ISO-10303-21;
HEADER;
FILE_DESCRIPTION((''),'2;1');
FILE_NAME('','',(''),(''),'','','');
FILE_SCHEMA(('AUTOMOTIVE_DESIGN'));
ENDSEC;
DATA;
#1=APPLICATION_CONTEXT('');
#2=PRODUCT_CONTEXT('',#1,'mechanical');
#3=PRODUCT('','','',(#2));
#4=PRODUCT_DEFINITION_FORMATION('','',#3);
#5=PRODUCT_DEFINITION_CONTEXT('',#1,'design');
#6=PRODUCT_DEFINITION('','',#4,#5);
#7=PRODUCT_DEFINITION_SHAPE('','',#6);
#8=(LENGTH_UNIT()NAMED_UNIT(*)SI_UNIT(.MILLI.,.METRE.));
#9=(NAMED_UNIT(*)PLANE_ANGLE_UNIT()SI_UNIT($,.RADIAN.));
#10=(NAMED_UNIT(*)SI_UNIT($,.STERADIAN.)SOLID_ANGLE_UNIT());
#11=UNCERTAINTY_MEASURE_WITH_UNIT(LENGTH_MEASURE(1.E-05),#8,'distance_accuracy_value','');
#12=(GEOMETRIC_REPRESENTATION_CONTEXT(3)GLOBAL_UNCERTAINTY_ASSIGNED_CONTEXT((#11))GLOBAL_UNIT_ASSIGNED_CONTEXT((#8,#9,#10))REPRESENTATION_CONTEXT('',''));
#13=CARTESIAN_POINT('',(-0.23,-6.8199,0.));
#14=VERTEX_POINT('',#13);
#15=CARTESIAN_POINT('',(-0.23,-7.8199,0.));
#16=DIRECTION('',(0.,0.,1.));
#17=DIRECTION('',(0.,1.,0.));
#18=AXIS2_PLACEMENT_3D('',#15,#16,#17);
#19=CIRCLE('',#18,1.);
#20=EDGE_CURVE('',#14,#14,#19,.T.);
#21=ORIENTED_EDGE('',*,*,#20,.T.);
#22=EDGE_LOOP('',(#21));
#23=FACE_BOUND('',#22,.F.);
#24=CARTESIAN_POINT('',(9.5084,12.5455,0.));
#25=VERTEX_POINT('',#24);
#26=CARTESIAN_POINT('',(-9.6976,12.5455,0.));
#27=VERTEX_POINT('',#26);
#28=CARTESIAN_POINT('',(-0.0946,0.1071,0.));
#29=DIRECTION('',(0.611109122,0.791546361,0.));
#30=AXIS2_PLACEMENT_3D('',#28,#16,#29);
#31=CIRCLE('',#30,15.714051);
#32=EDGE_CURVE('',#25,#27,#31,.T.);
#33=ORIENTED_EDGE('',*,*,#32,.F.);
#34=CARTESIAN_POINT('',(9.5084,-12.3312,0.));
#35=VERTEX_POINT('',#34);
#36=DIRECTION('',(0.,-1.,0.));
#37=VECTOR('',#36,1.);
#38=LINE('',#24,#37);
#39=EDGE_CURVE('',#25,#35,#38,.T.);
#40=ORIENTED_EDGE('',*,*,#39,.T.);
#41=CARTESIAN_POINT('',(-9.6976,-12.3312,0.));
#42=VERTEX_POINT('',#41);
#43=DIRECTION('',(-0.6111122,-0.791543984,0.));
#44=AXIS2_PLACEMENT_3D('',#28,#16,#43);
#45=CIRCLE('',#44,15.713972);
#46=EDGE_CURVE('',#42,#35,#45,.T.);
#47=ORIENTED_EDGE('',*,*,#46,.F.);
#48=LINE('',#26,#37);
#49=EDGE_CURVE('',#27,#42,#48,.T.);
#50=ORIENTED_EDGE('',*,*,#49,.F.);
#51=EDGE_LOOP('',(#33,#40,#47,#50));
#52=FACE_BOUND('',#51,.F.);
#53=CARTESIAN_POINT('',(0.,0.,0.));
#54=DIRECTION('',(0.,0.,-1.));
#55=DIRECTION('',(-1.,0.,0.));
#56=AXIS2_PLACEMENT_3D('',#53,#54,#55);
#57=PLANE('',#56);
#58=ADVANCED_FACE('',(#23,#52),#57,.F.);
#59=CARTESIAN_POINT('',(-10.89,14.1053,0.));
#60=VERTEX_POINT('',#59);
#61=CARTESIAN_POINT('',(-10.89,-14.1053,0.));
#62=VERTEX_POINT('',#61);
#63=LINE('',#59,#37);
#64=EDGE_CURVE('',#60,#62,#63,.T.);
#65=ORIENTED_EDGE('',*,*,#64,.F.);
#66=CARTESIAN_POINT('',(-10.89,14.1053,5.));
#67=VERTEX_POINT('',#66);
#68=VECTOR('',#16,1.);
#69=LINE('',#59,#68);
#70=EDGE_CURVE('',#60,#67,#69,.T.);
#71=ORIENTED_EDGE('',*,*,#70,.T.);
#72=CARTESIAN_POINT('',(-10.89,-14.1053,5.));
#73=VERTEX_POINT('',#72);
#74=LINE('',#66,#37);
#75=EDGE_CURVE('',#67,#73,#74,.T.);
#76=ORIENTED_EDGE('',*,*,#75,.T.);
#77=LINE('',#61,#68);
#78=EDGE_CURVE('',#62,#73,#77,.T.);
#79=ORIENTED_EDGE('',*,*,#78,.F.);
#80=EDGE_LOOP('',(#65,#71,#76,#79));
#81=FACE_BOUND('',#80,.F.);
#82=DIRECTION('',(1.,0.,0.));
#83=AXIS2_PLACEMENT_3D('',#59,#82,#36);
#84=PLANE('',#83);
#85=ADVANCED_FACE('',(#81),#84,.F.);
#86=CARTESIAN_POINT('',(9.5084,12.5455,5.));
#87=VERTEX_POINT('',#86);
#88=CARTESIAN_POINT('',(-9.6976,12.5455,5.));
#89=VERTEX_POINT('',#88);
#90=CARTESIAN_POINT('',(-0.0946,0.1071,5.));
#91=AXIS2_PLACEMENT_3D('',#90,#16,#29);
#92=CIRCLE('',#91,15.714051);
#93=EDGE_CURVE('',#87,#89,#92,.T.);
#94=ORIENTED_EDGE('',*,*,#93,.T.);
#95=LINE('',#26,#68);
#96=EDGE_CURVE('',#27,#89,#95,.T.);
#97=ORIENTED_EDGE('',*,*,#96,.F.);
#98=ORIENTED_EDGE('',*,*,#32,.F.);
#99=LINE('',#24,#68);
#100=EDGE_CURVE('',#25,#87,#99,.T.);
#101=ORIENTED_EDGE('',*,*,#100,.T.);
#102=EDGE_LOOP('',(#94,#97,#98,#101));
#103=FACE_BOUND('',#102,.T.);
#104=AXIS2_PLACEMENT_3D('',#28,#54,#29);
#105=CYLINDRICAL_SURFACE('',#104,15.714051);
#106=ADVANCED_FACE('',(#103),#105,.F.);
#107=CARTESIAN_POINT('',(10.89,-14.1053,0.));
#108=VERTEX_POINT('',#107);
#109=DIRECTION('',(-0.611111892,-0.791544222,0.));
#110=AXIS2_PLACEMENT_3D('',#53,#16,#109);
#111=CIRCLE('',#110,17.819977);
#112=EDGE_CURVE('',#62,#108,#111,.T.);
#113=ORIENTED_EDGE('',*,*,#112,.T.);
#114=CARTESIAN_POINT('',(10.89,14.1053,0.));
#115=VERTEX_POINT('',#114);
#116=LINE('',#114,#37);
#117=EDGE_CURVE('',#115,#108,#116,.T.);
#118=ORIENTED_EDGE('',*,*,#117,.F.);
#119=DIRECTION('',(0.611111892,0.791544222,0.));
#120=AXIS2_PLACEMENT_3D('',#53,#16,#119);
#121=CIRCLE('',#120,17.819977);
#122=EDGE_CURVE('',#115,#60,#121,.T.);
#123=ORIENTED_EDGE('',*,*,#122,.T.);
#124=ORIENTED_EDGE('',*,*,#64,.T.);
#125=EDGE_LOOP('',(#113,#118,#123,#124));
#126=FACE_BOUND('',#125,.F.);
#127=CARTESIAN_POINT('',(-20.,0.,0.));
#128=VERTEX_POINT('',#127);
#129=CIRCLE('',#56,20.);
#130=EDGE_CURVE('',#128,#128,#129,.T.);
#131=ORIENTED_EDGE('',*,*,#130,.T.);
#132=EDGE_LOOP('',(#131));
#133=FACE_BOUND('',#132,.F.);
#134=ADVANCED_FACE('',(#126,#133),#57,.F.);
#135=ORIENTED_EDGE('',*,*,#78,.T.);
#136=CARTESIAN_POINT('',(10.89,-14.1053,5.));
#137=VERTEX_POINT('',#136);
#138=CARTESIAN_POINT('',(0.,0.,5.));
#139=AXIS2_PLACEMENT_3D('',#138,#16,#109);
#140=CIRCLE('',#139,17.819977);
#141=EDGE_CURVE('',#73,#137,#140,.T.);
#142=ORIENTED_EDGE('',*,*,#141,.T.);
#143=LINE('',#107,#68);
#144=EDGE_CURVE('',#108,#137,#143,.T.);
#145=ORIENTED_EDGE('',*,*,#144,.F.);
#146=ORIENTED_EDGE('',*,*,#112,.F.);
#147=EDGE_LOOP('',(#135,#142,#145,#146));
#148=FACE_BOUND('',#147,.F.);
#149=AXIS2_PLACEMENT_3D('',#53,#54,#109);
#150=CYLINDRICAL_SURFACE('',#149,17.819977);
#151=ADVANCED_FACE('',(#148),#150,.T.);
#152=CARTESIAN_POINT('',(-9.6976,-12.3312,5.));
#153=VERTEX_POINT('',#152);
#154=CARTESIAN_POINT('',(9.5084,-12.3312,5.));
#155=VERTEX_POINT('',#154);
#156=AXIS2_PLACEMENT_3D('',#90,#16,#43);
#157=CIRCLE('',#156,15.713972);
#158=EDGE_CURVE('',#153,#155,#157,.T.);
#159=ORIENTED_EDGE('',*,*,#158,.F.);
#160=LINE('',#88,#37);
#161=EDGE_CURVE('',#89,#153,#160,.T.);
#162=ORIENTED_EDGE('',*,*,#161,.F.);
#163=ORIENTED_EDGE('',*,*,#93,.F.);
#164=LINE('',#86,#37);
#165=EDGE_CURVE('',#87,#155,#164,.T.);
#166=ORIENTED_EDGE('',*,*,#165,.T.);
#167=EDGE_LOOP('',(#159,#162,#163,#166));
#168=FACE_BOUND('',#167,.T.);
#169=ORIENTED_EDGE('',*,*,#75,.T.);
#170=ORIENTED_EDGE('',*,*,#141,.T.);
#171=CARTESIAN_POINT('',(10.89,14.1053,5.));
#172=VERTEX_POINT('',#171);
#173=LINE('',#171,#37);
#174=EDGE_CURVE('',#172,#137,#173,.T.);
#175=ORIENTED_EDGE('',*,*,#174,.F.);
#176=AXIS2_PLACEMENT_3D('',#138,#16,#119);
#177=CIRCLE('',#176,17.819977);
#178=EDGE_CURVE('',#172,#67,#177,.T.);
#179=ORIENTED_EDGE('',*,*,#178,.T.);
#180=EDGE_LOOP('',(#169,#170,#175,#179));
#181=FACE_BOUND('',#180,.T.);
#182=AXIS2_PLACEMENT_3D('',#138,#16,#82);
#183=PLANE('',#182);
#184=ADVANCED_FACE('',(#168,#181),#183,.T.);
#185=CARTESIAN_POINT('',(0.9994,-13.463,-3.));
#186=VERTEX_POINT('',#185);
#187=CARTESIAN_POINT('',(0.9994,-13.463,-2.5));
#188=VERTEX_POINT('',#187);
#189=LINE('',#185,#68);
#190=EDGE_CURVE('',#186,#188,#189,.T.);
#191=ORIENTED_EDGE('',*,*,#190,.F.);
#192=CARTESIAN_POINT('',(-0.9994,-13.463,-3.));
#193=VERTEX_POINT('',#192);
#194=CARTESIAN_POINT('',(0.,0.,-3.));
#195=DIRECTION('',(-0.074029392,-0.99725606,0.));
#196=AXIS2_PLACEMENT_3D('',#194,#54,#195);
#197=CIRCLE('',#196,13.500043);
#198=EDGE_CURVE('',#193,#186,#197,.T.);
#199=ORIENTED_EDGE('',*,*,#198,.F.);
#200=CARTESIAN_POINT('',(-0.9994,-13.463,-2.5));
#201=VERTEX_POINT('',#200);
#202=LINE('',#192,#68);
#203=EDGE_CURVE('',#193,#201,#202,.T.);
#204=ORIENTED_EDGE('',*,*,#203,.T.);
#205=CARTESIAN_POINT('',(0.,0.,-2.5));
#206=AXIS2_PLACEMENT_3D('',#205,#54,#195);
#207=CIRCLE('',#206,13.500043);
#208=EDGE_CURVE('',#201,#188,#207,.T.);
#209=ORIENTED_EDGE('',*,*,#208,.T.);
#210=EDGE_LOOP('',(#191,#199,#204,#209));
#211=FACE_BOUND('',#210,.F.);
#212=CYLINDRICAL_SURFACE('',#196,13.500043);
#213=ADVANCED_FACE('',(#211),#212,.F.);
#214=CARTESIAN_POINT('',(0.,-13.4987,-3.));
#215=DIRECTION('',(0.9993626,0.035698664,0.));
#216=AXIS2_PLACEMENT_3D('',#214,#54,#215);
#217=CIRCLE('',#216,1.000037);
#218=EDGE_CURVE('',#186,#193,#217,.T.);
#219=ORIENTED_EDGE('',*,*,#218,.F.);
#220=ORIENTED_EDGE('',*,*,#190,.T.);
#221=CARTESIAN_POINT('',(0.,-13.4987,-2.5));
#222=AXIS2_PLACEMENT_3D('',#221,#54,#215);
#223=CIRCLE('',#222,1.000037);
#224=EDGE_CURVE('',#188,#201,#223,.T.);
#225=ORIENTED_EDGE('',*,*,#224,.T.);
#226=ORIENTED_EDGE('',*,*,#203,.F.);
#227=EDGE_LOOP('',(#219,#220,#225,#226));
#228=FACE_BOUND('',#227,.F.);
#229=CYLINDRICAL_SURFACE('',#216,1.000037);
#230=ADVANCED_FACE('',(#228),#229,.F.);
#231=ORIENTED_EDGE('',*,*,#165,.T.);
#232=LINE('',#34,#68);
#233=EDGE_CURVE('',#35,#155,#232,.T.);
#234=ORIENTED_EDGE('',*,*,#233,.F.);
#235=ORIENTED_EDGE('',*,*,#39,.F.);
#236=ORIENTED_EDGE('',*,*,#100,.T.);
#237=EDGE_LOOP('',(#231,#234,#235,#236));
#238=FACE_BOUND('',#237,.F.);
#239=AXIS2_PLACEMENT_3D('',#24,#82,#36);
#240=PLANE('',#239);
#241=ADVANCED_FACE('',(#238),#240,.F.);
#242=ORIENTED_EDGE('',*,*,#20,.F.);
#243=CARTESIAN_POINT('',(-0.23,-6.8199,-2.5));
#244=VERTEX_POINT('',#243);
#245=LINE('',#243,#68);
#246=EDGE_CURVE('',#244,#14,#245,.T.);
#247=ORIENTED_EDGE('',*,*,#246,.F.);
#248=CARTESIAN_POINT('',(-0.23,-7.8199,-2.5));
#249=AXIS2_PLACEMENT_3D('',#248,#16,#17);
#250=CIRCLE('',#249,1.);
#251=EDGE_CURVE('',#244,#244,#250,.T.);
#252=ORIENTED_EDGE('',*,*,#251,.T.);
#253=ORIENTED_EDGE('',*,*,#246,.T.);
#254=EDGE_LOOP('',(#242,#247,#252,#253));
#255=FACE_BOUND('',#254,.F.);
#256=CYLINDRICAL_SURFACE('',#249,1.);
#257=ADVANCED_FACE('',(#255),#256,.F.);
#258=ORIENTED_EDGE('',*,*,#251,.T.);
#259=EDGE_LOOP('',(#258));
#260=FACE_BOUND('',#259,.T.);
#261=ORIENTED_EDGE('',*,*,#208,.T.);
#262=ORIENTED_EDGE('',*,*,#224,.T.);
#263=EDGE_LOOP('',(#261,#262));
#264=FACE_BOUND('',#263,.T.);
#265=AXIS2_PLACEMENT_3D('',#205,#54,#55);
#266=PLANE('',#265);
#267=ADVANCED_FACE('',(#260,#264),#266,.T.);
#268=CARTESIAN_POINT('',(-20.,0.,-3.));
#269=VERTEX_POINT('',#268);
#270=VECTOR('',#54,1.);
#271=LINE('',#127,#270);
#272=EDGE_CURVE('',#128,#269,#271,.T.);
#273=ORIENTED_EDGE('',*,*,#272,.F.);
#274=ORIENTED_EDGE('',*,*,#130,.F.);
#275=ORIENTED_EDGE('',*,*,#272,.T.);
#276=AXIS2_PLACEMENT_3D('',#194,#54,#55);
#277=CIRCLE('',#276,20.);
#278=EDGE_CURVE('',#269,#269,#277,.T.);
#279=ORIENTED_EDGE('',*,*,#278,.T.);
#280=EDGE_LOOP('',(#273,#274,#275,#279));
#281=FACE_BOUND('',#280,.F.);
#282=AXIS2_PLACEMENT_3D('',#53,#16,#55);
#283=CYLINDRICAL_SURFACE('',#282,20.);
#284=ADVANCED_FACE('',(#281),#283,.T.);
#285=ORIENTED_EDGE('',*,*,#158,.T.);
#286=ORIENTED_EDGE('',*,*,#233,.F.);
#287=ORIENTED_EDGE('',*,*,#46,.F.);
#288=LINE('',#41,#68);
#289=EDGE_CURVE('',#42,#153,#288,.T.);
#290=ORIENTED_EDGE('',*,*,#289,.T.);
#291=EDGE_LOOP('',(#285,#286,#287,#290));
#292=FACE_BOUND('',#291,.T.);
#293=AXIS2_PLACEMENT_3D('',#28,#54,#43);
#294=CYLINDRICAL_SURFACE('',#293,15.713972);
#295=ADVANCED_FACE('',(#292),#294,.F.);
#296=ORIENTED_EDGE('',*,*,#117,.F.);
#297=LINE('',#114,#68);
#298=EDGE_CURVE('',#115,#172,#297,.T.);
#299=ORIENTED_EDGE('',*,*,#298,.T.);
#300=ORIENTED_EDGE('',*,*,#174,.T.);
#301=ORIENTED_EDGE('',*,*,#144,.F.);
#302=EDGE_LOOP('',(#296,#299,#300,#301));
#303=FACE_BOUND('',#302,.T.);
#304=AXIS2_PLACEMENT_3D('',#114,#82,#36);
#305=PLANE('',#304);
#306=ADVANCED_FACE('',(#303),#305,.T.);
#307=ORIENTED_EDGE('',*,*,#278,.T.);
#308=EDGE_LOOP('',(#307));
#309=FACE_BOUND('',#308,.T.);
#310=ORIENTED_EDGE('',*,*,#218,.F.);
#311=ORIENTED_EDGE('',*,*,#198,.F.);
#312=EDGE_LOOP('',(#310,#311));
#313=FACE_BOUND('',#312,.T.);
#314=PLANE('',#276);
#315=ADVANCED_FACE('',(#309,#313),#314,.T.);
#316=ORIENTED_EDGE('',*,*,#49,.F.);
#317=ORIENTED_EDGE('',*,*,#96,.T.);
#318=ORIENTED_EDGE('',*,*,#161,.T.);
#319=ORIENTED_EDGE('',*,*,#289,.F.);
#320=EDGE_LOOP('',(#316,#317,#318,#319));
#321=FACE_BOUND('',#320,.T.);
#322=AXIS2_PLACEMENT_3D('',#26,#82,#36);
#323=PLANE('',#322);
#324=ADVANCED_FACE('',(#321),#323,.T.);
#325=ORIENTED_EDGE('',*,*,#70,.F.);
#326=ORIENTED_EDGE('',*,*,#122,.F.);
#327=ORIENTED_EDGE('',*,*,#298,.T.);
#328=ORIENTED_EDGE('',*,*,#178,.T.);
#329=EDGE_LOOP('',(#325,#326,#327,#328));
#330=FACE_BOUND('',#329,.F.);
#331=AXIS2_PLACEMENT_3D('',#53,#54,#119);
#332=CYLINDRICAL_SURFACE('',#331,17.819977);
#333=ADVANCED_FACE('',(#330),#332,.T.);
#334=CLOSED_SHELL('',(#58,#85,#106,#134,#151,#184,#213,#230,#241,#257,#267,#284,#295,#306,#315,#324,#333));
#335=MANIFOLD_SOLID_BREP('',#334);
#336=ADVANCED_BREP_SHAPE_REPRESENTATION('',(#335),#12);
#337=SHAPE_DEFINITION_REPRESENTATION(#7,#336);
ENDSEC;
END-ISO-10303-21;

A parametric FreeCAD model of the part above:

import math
import FreeCAD as App
import Part
import Sketcher
Q = App.Units.Quantity

doc = App.newDocument("Part")
body = doc.addObject("PartDesign::Body", "Body")

# Sketch on XY plane
sketch1 = doc.addObject("Sketcher::SketchObject", "Sketch")
body.addObject(sketch1)
sketch1.AttachmentSupport = (doc.XY_Plane, [""])
sketch1.MapMode = "FlatFace"
sketch1.addGeometry([
    Part.ArcOfCircle(Part.Circle(App.Vector(0, 0, 0), App.Vector(0, 0, 1), 17.819977), math.radians(52.330056), math.radians(127.669944)),  # 0
    Part.LineSegment(App.Vector(-10.89, 14.1053, 0), App.Vector(-10.89, -14.1053, 0)),  # 1
    Part.ArcOfCircle(Part.Circle(App.Vector(0, 0, 0), App.Vector(0, 0, 1), 17.819977), math.radians(-127.669944), math.radians(-52.330056)),  # 2
    Part.LineSegment(App.Vector(10.89, -14.1053, 0), App.Vector(10.89, 14.1053, 0)),  # 3
    Part.LineSegment(App.Vector(-9.6976, -12.3312, 0), App.Vector(-9.6976, 12.5455, 0)),  # 4
    Part.ArcOfCircle(Part.Circle(App.Vector(-0.0946, 0.1071, 0), App.Vector(0, 0, 1), 15.714051), math.radians(52.330257), math.radians(127.669743)),  # 5
    Part.LineSegment(App.Vector(9.5084, 12.5455, 0), App.Vector(9.5084, -12.3312, 0)),  # 6
    Part.ArcOfCircle(Part.Circle(App.Vector(-0.0946, 0.1071, 0), App.Vector(0, 0, 1), 15.713972), math.radians(-127.669966), math.radians(-52.330034)),  # 7
], False)
sketch1.addConstraint([
    Sketcher.Constraint("Coincident", 0, 2, 1, 1),
    Sketcher.Constraint("Coincident", 1, 2, 2, 1),
    Sketcher.Constraint("Coincident", 2, 2, 3, 1),
    Sketcher.Constraint("Coincident", 3, 2, 0, 1),
    Sketcher.Constraint("Coincident", 4, 2, 5, 2),
    Sketcher.Constraint("Coincident", 5, 1, 6, 1),
    Sketcher.Constraint("Coincident", 6, 2, 7, 2),
    Sketcher.Constraint("Coincident", 7, 1, 4, 1),
    Sketcher.Constraint("Vertical", 1),
    Sketcher.Constraint("Vertical", 3),
    Sketcher.Constraint("Vertical", 4),
    Sketcher.Constraint("Vertical", 6),
    Sketcher.Constraint("Coincident", 0, 3, -1, 1),
    Sketcher.Constraint("Coincident", 2, 3, -1, 1),
    Sketcher.Constraint("Coincident", 7, 3, 5, 3),
    Sketcher.Constraint("Equal", 0, 2),
    Sketcher.Constraint("Equal", 5, 7),
    Sketcher.Constraint("Horizontal", 1, 2, 2, 2),
    Sketcher.Constraint("Horizontal", 4, 2, 5, 1),
    Sketcher.Constraint("Radius", 0, Q("17.82 mm")),
    Sketcher.Constraint("Radius", 5, Q("15.714 mm")),
    Sketcher.Constraint("DistanceX", 0, 2, -1, 1, Q("10.89 mm")),
    Sketcher.Constraint("DistanceY", 4, 1, 4, 2, Q("24.8767 mm")),
    Sketcher.Constraint("DistanceY", -1, 1, 5, 3, Q("0.107 mm")),
    Sketcher.Constraint("DistanceX", 5, 3, -1, 1, Q("0.0946 mm")),
])
pad1 = doc.addObject("PartDesign::Pad", "Pad")
body.addObject(pad1)
pad1.Profile = sketch1
pad1.Length = 5

# Sketch on XY plane
sketch2 = doc.addObject("Sketcher::SketchObject", "Sketch001")
body.addObject(sketch2)
sketch2.AttachmentSupport = (doc.XY_Plane, [""])
sketch2.MapMode = "FlatFace"
sketch2.addGeometry(Part.Circle(App.Vector(0, 0, 0), App.Vector(0, 0, 1), 20), False)
sketch2.addConstraint([
    Sketcher.Constraint("Coincident", 0, 3, -1, 1),
    Sketcher.Constraint("Diameter", 0, Q("40 mm")),
])
pad2 = doc.addObject("PartDesign::Pad", "Pad001")
body.addObject(pad2)
pad2.Profile = sketch2
pad2.Length = 3
pad2.Reversed = True

# Sketch on XY plane
sketch3 = doc.addObject("Sketcher::SketchObject", "Sketch002")
body.addObject(sketch3)
sketch3.AttachmentSupport = (doc.XY_Plane, [""])
sketch3.MapMode = "FlatFace"
sketch3.AttachmentOffset = App.Placement(App.Vector(0, 0, -3), App.Rotation())
sketch3.addGeometry([
    Part.ArcOfCircle(Part.Circle(App.Vector(0, -13.4987, 0), App.Vector(0, 0, 1), 1.000037), math.radians(177.954183), math.radians(362.045817)),
    Part.ArcOfCircle(Part.Circle(App.Vector(0, 0, 0), App.Vector(0, 0, 1), 13.500043), math.radians(-85.754544), math.radians(265.754544)),
], False)
sketch3.addConstraint([
    Sketcher.Constraint("Coincident", 0, 1, 1, 2),
    Sketcher.Constraint("Coincident", 1, 1, 0, 2),
    Sketcher.Constraint("Coincident", 1, 3, -1, 1),
    Sketcher.Constraint("PointOnObject", 0, 3, -2),
    Sketcher.Constraint("Radius", 0, Q("1 mm")),
    Sketcher.Constraint("Radius", 1, Q("13.5 mm")),
    Sketcher.Constraint("DistanceY", 0, 3, -1, 1, Q("13.4987 mm")),
])
pocket1 = doc.addObject("PartDesign::Pocket", "Pocket")
body.addObject(pocket1)
pocket1.Profile = sketch3
pocket1.Length = 0.5
pocket1.Reversed = True

# Sketch on XY plane
sketch4 = doc.addObject("Sketcher::SketchObject", "Sketch003")
body.addObject(sketch4)
sketch4.AttachmentSupport = (doc.XY_Plane, [""])
sketch4.MapMode = "FlatFace"
sketch4.AttachmentOffset = App.Placement(App.Vector(0, 0, -2.5), App.Rotation())
sketch4.addGeometry(Part.Circle(App.Vector(-0.23, -7.8199, 0), App.Vector(0, 0, 1), 1), False)
sketch4.addConstraint([
    Sketcher.Constraint("Diameter", 0, Q("2 mm")),
    Sketcher.Constraint("DistanceX", 0, 3, -1, 1, Q("0.23 mm")),
    Sketcher.Constraint("DistanceY", 0, 3, -1, 1, Q("7.82 mm")),
])
doc.recompute()
hole = doc.addObject("PartDesign::Hole", "Hole")
body.addObject(hole)
hole.Profile = sketch4
hole.ThreadType = "None"
hole.Diameter = 2
hole.DepthType = "ThroughAll"
hole.Reversed = True

doc.recompute()
